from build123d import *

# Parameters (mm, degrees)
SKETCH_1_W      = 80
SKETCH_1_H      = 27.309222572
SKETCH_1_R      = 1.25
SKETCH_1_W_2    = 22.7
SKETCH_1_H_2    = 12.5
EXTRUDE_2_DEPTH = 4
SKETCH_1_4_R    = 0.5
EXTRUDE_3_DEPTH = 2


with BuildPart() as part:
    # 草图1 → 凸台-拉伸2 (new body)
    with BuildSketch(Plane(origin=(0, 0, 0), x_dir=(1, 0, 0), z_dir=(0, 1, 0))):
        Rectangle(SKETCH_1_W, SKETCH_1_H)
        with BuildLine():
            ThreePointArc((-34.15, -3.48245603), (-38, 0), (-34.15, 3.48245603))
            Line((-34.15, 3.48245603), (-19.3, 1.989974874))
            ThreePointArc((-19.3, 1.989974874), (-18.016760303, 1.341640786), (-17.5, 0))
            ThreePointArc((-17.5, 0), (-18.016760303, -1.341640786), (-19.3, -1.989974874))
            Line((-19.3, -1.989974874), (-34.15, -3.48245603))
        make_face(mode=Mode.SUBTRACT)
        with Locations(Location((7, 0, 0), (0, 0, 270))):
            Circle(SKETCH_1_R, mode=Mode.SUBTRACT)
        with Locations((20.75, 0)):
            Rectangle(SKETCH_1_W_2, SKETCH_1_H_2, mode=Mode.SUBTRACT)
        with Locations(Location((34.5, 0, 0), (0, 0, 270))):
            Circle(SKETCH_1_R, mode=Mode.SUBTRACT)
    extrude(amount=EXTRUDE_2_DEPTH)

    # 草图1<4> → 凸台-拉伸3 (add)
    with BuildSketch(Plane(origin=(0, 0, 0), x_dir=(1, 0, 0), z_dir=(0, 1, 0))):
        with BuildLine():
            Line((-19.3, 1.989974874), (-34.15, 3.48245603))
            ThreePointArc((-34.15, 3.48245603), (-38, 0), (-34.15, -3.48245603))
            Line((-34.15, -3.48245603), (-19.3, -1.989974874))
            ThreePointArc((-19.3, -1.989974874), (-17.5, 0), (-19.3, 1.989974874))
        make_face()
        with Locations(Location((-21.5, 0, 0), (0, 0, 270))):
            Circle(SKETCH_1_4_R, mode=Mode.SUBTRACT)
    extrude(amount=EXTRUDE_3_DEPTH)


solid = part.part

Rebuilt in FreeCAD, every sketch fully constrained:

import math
import FreeCAD as App
import Part
import Sketcher

V = App.Vector

doc = App.newDocument("Part")
body = doc.addObject("PartDesign::Body", "Body")

# Sketch on XZ plane
sketch1 = body.newObject("Sketcher::SketchObject", "Sketch")
sketch1.AttachmentSupport = (doc.getObject("XZ_Plane"), [""])
sketch1.MapMode = "FlatFace"
sketch1.addGeometry(Part.LineSegment(V(-40, -13.654611, 0), V(-40, 13.654611, 0)), False)
sketch1.addGeometry(Part.LineSegment(V(-40, 13.654611, 0), V(40, 13.654611, 0)), False)
sketch1.addGeometry(Part.LineSegment(V(40, 13.654611, 0), V(40, -13.654611, 0)), False)
sketch1.addGeometry(Part.LineSegment(V(40, -13.654611, 0), V(-40, -13.654611, 0)), False)
sketch1.addGeometry(Part.LineSegment(V(-19.3, 1.989975, 0), V(-34.15, 3.482456, 0)), False)
sketch1.addGeometry(Part.ArcOfCircle(Part.Circle(V(-34.5, 0, 0), V(0, 0, 1), 3.5), math.radians(84.26083), math.radians(275.73917)), False)
sketch1.addGeometry(Part.LineSegment(V(-34.15, -3.482456, 0), V(-19.3, -1.989975, 0)), False)
sketch1.addGeometry(Part.ArcOfCircle(Part.Circle(V(-19.5, 0, 0), V(0, 0, 1), 2), math.radians(-84.260829), math.radians(0)), False)
sketch1.addGeometry(Part.ArcOfCircle(Part.Circle(V(-19.5, 0, 0), V(0, 0, 1), 2), math.radians(0), math.radians(84.260829)), False)
sketch1.addGeometry(Part.Circle(V(7, 0, 0), V(0, 0, 1), 1.25), False)
sketch1.addGeometry(Part.LineSegment(V(32.1, 6.25, 0), V(9.4, 6.25, 0)), False)
sketch1.addGeometry(Part.LineSegment(V(9.4, 6.25, 0), V(9.4, -6.25, 0)), False)
sketch1.addGeometry(Part.LineSegment(V(9.4, -6.25, 0), V(32.1, -6.25, 0)), False)
sketch1.addGeometry(Part.LineSegment(V(32.1, -6.25, 0), V(32.1, 6.25, 0)), False)
sketch1.addGeometry(Part.Circle(V(34.5, 0, 0), V(0, 0, 1), 1.25), False)
sketch1.addConstraint(Sketcher.Constraint("Coincident", 0, 2, 1, 1))
sketch1.addConstraint(Sketcher.Constraint("Coincident", 1, 2, 2, 1))
sketch1.addConstraint(Sketcher.Constraint("Coincident", 2, 2, 3, 1))
sketch1.addConstraint(Sketcher.Constraint("Coincident", 3, 2, 0, 1))
sketch1.addConstraint(Sketcher.Constraint("Tangent", 4, 2, 5, 1))
sketch1.addConstraint(Sketcher.Constraint("Tangent", 5, 2, 6, 1))
sketch1.addConstraint(Sketcher.Constraint("Tangent", 6, 2, 7, 1))
sketch1.addConstraint(Sketcher.Constraint("Tangent", 7, 2, 8, 1))
sketch1.addConstraint(Sketcher.Constraint("Tangent", 8, 2, 4, 1))
sketch1.addConstraint(Sketcher.Constraint("Coincident", 10, 2, 11, 1))
sketch1.addConstraint(Sketcher.Constraint("Coincident", 11, 2, 12, 1))
sketch1.addConstraint(Sketcher.Constraint("Coincident", 12, 2, 13, 1))
sketch1.addConstraint(Sketcher.Constraint("Coincident", 13, 2, 10, 1))
sketch1.addConstraint(Sketcher.Constraint("Vertical", 0))
sketch1.addConstraint(Sketcher.Constraint("Horizontal", 1))
sketch1.addConstraint(Sketcher.Constraint("Vertical", 2))
sketch1.addConstraint(Sketcher.Constraint("Horizontal", 3))
sketch1.addConstraint(Sketcher.Constraint("Horizontal", 10))
sketch1.addConstraint(Sketcher.Constraint("Vertical", 11))
sketch1.addConstraint(Sketcher.Constraint("Horizontal", 12))
sketch1.addConstraint(Sketcher.Constraint("Vertical", 13))
sketch1.addConstraint(Sketcher.Constraint("Equal", 7, 8))
sketch1.addConstraint(Sketcher.Constraint("Equal", 9, 14))
sketch1.addConstraint(Sketcher.Constraint("Symmetric", 5, 3, 14, 3, -1, 1))
sketch1.addConstraint(Sketcher.Constraint("Symmetric", 0, 2, 2, 2, -1, 1))
sketch1.addConstraint(Sketcher.Constraint("Symmetric", 4, 2, 5, 2, -1))
sketch1.addConstraint(Sketcher.Constraint("PointOnObject", 9, 3, -1))
sketch1.addConstraint(Sketcher.Constraint("PointOnObject", 7, 2, -1))
sketch1.addConstraint(Sketcher.Constraint("Radius", 7, 2.0))
sketch1.addConstraint(Sketcher.Constraint("Diameter", 9, 2.5))
sketch1.addConstraint(Sketcher.Constraint("Radius", 5, 3.5))
sketch1.addConstraint(Sketcher.Constraint("DistanceX", 1, 1, 1, 2, 80.0))
sketch1.addConstraint(Sketcher.Constraint("DistanceX", 10, 2, 10, 1, 22.7))
sketch1.addConstraint(Sketcher.Constraint("DistanceY", 11, 2, 11, 1, 12.5))
sketch1.addConstraint(Sketcher.Constraint("DistanceX", -1, 1, 9, 3, 7.0))
sketch1.addConstraint(Sketcher.Constraint("DistanceX", 5, 3, 7, 3, 15.0))
sketch1.addConstraint(Sketcher.Constraint("DistanceX", 7, 3, 14, 3, 54.0))
sketch1.addConstraint(Sketcher.Constraint("DistanceX", -1, 1, 10, 2, 9.4))
sketch1.addConstraint(Sketcher.Constraint("DistanceY", -1, 1, 10, 2, 6.25))
sketch1.addConstraint(Sketcher.Constraint("DistanceY", 0, 1, 0, 2, 27.309223))
pad1 = body.newObject("PartDesign::Pad", "Pad")
pad1.Profile = sketch1
pad1.Length = 4
pad1.Reversed = True

# Sketch on XZ plane
sketch2 = body.newObject("Sketcher::SketchObject", "Sketch001")
sketch2.AttachmentSupport = (doc.getObject("XZ_Plane"), [""])
sketch2.MapMode = "FlatFace"
sketch2.addGeometry(Part.LineSegment(V(-19.3, -1.989975, 0), V(-34.15, -3.482456, 0)), False)
sketch2.addGeometry(Part.ArcOfCircle(Part.Circle(V(-34.5, 0, 0), V(0, 0, 1), 3.5), math.radians(84.26083), math.radians(275.73917)), False)
sketch2.addGeometry(Part.LineSegment(V(-34.15, 3.482456, 0), V(-19.3, 1.989975, 0)), False)
sketch2.addGeometry(Part.ArcOfCircle(Part.Circle(V(-19.5, 0, 0), V(0, 0, 1), 2), math.radians(-84.26083), math.radians(84.26083)), False)
sketch2.addGeometry(Part.Circle(V(-21.5, 0, 0), V(0, 0, 1), 0.5), False)
sketch2.addConstraint(Sketcher.Constraint("Tangent", 0, 2, 1, 2))
sketch2.addConstraint(Sketcher.Constraint("Tangent", 1, 1, 2, 1))
sketch2.addConstraint(Sketcher.Constraint("Tangent", 2, 2, 3, 2))
sketch2.addConstraint(Sketcher.Constraint("Tangent", 3, 1, 0, 1))
sketch2.addConstraint(Sketcher.Constraint("Symmetric", 0, 2, 1, 1, -1))
sketch2.addConstraint(Sketcher.Constraint("PointOnObject", 4, 3, -1))
sketch2.addConstraint(Sketcher.Constraint("Diameter", 4, 1.0))
sketch2.addConstraint(Sketcher.Constraint("Radius", 3, 2.0))
sketch2.addConstraint(Sketcher.Constraint("Radius", 1, 3.5))
sketch2.addConstraint(Sketcher.Constraint("DistanceX", 1, 3, 3, 3, 15.0))
sketch2.addConstraint(Sketcher.Constraint("DistanceX", 4, 3, 3, 3, 2.0))
sketch2.addConstraint(Sketcher.Constraint("DistanceX", 1, 3, -1, 1, 34.5))
pad2 = body.newObject("PartDesign::Pad", "Pad001")
pad2.Profile = sketch2
pad2.Length = 2
pad2.Reversed = True

doc.recompute()
